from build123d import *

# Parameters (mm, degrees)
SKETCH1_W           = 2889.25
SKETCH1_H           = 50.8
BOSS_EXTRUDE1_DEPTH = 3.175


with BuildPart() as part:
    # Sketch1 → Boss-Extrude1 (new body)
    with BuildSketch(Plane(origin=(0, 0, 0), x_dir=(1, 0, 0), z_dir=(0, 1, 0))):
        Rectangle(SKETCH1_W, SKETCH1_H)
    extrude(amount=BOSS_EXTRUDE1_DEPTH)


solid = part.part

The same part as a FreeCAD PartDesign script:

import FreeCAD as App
import Part
import Sketcher

V = App.Vector
Q = App.Units.Quantity

doc = App.newDocument("Part")
body = doc.addObject("PartDesign::Body", "Body")

# Sketch on XZ plane
sketch1 = body.newObject("Sketcher::SketchObject", "Sketch")
sketch1.AttachmentSupport = (doc.getObject("XZ_Plane"), [""])
sketch1.MapMode = "FlatFace"
sketch1.addGeometry([
    Part.LineSegment(V(-1445, -25, 0), V(-1445, 25, 0)),
    Part.LineSegment(V(-1445, 25, 0), V(1445, 25, 0)),
    Part.LineSegment(V(1445, 25, 0), V(1445, -25, 0)),
    Part.LineSegment(V(1445, -25, 0), V(-1445, -25, 0)),
], False)
sketch1.addConstraint([
    Sketcher.Constraint("Coincident", 0, 2, 1, 1),
    Sketcher.Constraint("Coincident", 1, 2, 2, 1),
    Sketcher.Constraint("Coincident", 2, 2, 3, 1),
    Sketcher.Constraint("Coincident", 3, 2, 0, 1),
    Sketcher.Constraint("Vertical", 0),
    Sketcher.Constraint("Horizontal", 1),
    Sketcher.Constraint("Vertical", 2),
    Sketcher.Constraint("Horizontal", 3),
    Sketcher.Constraint("Symmetric", 0, 2, 2, 2, -1, 1),
    Sketcher.Constraint("DistanceY", 0, 1, 0, 2, Q("2 in")),
    Sketcher.Constraint("DistanceX", 1, 1, 1, 2, Q("113.75 in")),
])
pad1 = body.newObject("PartDesign::Pad", "Pad")
pad1.Profile = sketch1
pad1.Length = Q("0.125 in")
pad1.Reversed = True

doc.recompute()
